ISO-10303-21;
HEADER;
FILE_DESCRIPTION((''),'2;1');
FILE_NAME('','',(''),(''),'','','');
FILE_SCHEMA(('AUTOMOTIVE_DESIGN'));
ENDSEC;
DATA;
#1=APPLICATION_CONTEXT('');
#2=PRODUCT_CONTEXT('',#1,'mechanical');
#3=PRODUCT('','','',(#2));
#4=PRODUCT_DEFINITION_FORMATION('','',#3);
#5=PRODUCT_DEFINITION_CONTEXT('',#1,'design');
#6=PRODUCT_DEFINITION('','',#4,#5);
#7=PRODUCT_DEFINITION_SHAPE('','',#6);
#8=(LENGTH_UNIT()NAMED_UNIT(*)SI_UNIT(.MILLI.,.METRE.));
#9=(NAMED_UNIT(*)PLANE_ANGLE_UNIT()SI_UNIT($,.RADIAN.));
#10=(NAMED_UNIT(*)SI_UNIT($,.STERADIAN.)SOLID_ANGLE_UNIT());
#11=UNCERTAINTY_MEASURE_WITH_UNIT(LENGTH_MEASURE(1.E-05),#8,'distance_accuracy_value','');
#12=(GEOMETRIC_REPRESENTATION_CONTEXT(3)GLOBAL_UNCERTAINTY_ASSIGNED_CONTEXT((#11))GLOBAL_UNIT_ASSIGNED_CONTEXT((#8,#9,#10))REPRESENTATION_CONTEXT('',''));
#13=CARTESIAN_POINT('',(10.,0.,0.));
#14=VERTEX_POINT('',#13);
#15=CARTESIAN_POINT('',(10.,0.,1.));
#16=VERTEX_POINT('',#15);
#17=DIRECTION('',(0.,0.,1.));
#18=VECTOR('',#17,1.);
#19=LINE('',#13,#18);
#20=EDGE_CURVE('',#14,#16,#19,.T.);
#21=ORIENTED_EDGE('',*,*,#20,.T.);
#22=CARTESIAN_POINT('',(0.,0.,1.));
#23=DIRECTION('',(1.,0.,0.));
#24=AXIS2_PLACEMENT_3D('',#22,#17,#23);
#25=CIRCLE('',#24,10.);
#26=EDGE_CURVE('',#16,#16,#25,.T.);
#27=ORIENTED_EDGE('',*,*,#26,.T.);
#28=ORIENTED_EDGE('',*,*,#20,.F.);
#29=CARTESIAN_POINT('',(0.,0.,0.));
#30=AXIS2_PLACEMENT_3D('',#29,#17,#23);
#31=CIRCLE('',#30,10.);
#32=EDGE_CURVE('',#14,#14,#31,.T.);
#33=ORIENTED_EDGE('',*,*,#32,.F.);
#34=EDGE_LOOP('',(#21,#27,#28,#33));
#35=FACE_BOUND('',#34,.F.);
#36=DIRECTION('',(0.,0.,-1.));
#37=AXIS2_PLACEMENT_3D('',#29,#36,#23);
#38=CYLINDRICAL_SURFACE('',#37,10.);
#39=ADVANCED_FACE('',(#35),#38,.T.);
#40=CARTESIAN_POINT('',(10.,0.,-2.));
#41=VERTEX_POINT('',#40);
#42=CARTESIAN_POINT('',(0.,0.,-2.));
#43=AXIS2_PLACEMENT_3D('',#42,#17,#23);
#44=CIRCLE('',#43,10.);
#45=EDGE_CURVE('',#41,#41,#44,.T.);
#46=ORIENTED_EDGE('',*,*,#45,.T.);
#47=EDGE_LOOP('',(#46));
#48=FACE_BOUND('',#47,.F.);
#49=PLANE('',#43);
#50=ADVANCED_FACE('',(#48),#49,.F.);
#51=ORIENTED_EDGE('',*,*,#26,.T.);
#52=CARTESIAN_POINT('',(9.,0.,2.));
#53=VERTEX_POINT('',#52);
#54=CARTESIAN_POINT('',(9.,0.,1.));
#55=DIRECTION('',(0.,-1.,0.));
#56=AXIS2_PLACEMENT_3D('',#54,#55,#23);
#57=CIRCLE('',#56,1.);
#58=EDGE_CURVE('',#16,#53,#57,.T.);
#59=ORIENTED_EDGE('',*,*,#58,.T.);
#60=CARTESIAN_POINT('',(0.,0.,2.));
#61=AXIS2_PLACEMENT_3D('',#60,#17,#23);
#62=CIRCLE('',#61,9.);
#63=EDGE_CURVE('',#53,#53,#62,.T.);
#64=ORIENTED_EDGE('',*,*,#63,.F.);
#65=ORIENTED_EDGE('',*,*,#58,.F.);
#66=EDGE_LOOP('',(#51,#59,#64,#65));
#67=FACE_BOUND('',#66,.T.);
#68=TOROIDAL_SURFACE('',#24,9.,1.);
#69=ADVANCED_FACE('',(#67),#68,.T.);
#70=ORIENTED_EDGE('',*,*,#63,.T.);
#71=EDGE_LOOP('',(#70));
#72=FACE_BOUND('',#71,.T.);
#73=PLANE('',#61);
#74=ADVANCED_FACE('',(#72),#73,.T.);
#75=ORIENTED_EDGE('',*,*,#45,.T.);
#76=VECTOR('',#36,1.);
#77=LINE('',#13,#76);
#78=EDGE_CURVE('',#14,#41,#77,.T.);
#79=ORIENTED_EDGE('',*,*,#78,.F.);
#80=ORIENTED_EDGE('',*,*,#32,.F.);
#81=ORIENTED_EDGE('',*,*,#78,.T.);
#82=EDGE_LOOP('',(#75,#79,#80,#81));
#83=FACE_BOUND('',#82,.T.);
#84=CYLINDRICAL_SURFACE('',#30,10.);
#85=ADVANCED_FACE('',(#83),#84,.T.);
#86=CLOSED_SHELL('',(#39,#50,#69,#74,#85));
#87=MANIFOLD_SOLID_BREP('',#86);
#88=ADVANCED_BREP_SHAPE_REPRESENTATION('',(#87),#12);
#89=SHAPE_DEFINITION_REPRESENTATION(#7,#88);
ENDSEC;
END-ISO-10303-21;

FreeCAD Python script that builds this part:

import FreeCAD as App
import Part
import Sketcher
Q = App.Units.Quantity


def edges_at(feature, points):
    """Names of the edges that pass closest to the given points."""
    edges = feature.Shape.Edges
    near = lambda p: min(range(len(edges)), key=lambda i: edges[i].distToShape(Part.Vertex(*p))[0])
    return sorted({f"Edge{near(p) + 1}" for p in points})

doc = App.newDocument("Part")
params = doc.addObject("Spreadsheet::Sheet", "Params")
for row, (alias, value) in enumerate([
    ("sketch1_diameter", "20 mm"),
    ("pad1_length", "4 mm"),
    ("fillet_radius", "1 mm"),
], start=1):
    params.set(f"A{row}", alias)
    params.set(f"B{row}", "=" + value)
    params.setAlias(f"B{row}", alias)

body = doc.addObject("PartDesign::Body", "Body")

# Sketch on XY plane
sketch1 = doc.addObject("Sketcher::SketchObject", "Sketch")
body.addObject(sketch1)
sketch1.AttachmentSupport = (doc.XY_Plane, [""])
sketch1.MapMode = "FlatFace"
sketch1.addGeometry(Part.Circle(App.Vector(0, 0, 0), App.Vector(0, 0, 1), 10), False)
sketch1.addConstraint([
    Sketcher.Constraint("Coincident", 0, 3, -1, 1),
    Sketcher.Constraint("Diameter", 0, Q("20 mm")),
])
sketch1.setExpression("Constraints[1]", "Params.sketch1_diameter")
pad1 = doc.addObject("PartDesign::Pad", "Pad")
body.addObject(pad1)
pad1.Profile = sketch1
pad1.setExpression("Length", "Params.pad1_length")
pad1.Midplane = True
doc.recompute()

fillet = doc.addObject("PartDesign::Fillet", "Fillet")
body.addObject(fillet)
fillet.Base = (pad1, edges_at(pad1, [(-10, 0, 2)]))
fillet.setExpression("Radius", "Params.fillet_radius")

doc.recompute()
